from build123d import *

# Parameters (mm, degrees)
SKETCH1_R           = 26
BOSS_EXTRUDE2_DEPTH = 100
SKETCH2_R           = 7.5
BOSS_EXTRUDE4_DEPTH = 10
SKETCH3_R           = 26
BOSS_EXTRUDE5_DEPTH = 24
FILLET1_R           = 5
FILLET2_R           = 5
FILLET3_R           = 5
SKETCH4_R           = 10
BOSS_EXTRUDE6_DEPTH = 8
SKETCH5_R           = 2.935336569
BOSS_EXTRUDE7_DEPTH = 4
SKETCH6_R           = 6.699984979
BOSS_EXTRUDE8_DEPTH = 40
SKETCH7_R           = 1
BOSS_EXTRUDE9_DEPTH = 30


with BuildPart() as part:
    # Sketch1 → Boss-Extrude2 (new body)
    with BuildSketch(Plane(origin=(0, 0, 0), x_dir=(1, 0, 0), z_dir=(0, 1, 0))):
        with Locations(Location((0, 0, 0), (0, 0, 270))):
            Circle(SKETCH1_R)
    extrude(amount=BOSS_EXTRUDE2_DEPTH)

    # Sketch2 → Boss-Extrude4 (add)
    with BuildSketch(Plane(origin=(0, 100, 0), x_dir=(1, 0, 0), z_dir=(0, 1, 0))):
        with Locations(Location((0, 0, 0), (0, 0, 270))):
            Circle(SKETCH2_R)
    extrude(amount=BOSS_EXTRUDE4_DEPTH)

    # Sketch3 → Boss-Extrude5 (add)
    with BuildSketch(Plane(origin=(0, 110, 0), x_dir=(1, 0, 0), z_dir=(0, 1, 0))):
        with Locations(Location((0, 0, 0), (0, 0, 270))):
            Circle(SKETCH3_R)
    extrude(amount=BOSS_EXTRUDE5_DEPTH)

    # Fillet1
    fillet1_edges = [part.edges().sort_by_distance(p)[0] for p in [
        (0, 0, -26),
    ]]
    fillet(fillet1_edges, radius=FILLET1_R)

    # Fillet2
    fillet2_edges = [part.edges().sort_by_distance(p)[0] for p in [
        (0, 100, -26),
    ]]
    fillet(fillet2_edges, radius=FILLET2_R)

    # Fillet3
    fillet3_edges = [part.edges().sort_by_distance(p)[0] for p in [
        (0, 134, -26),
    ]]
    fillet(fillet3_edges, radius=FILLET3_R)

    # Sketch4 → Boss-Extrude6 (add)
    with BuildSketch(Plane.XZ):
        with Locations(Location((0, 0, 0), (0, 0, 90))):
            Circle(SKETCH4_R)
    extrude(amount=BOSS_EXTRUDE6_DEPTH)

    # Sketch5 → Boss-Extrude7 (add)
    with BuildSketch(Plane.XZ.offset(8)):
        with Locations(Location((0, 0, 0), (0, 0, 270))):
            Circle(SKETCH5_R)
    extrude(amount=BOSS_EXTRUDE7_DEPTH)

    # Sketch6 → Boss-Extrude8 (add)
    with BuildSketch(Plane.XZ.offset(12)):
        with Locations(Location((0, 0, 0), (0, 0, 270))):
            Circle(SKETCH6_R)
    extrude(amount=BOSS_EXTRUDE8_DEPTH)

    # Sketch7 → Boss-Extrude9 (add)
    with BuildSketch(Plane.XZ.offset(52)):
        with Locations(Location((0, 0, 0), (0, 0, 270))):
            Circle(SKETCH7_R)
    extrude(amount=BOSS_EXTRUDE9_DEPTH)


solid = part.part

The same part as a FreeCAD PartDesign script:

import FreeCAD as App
import Part
import Sketcher

V = App.Vector
Q = App.Units.Quantity


def edges_at(feature, points):
    """Names of the edges that pass closest to the given points."""
    edges = feature.Shape.Edges
    near = lambda p: min(range(len(edges)), key=lambda i: edges[i].distToShape(Part.Vertex(*p))[0])
    return sorted({f"Edge{near(p) + 1}" for p in points})

doc = App.newDocument("Part")
body = doc.addObject("PartDesign::Body", "Body")

sketch1 = body.newObject("Sketcher::SketchObject", "Sketch")
sketch1.AttachmentSupport = (doc.getObject("XZ_Plane"), [""])
sketch1.MapMode = "FlatFace"
sketch1.addGeometry(Part.Circle(V(0, 0, 0), V(0, 0, 1), 26), False)
sketch1.addConstraint(Sketcher.Constraint("Coincident", 0, 3, -1, 1))
sketch1.addConstraint(Sketcher.Constraint("Diameter", 0, Q("52 mm")))
pad1 = body.newObject("PartDesign::Pad", "Pad")
pad1.Profile = sketch1
pad1.Length = 100
pad1.Reversed = True

sketch2 = body.newObject("Sketcher::SketchObject", "Sketch001")
sketch2.AttachmentSupport = (doc.getObject("XZ_Plane"), [""])
sketch2.MapMode = "FlatFace"
sketch2.AttachmentOffset = App.Placement(V(0, 0, -100), App.Rotation())
sketch2.addGeometry(Part.Circle(V(0, 0, 0), V(0, 0, 1), 8), False)
sketch2.addConstraint(Sketcher.Constraint("Coincident", 0, 3, -1, 1))
sketch2.addConstraint(Sketcher.Constraint("Diameter", 0, Q("15 mm")))
pad2 = body.newObject("PartDesign::Pad", "Pad001")
pad2.Profile = sketch2
pad2.Length = 10
pad2.Reversed = True

sketch3 = body.newObject("Sketcher::SketchObject", "Sketch002")
sketch3.AttachmentSupport = (doc.getObject("XZ_Plane"), [""])
sketch3.MapMode = "FlatFace"
sketch3.AttachmentOffset = App.Placement(V(0, 0, -110), App.Rotation())
sketch3.addGeometry(Part.Circle(V(0, 0, 0), V(0, 0, 1), 26), False)
sketch3.addConstraint(Sketcher.Constraint("Coincident", 0, 3, -1, 1))
sketch3.addConstraint(Sketcher.Constraint("Diameter", 0, Q("52 mm")))
pad3 = body.newObject("PartDesign::Pad", "Pad002")
pad3.Profile = sketch3
pad3.Length = 24
pad3.Reversed = True
doc.recompute()

fillet = body.newObject("PartDesign::Fillet", "Fillet")
fillet.Base = (pad3, edges_at(pad3, [(0, 0, -26)]))
fillet.Radius = 5
doc.recompute()

fillet2 = body.newObject("PartDesign::Fillet", "Fillet001")
fillet2.Base = (fillet, edges_at(fillet, [(0, 100, -26)]))
fillet2.Radius = 5
doc.recompute()

fillet3 = body.newObject("PartDesign::Fillet", "Fillet002")
fillet3.Base = (fillet2, edges_at(fillet2, [(0, 134, -26)]))
fillet3.Radius = 5

sketch4 = body.newObject("Sketcher::SketchObject", "Sketch003")
sketch4.AttachmentSupport = (doc.getObject("XZ_Plane"), [""])
sketch4.MapMode = "FlatFace"
sketch4.addGeometry(Part.Circle(V(0, 0, 0), V(0, 0, 1), 10), False)
sketch4.addConstraint(Sketcher.Constraint("Coincident", 0, 3, -1, 1))
sketch4.addConstraint(Sketcher.Constraint("Diameter", 0, Q("20 mm")))
pad4 = body.newObject("PartDesign::Pad", "Pad003")
pad4.Profile = sketch4
pad4.Length = 8

sketch5 = body.newObject("Sketcher::SketchObject", "Sketch004")
sketch5.AttachmentSupport = (doc.getObject("XZ_Plane"), [""])
sketch5.MapMode = "FlatFace"
sketch5.AttachmentOffset = App.Placement(V(0, 0, 8), App.Rotation())
sketch5.addGeometry(Part.Circle(V(0, 0, 0), V(0, 0, 1), 2.9), False)
sketch5.addConstraint(Sketcher.Constraint("Coincident", 0, 3, -1, 1))
sketch5.addConstraint(Sketcher.Constraint("Diameter", 0, Q("5.870673 mm")))
pad5 = body.newObject("PartDesign::Pad", "Pad004")
pad5.Profile = sketch5
pad5.Length = 4

sketch6 = body.newObject("Sketcher::SketchObject", "Sketch005")
sketch6.AttachmentSupport = (doc.getObject("XZ_Plane"), [""])
sketch6.MapMode = "FlatFace"
sketch6.AttachmentOffset = App.Placement(V(0, 0, 12), App.Rotation())
sketch6.addGeometry(Part.Circle(V(0, 0, 0), V(0, 0, 1), 7), False)
sketch6.addConstraint(Sketcher.Constraint("Coincident", 0, 3, -1, 1))
sketch6.addConstraint(Sketcher.Constraint("Diameter", 0, Q("13.39997 mm")))
pad6 = body.newObject("PartDesign::Pad", "Pad005")
pad6.Profile = sketch6
pad6.Length = 40

sketch7 = body.newObject("Sketcher::SketchObject", "Sketch006")
sketch7.AttachmentSupport = (doc.getObject("XZ_Plane"), [""])
sketch7.MapMode = "FlatFace"
sketch7.AttachmentOffset = App.Placement(V(0, 0, 52), App.Rotation())
sketch7.addGeometry(Part.Circle(V(0, 0, 0), V(0, 0, 1), 1), False)
sketch7.addConstraint(Sketcher.Constraint("Coincident", 0, 3, -1, 1))
sketch7.addConstraint(Sketcher.Constraint("Diameter", 0, Q("2 mm")))
pad7 = body.newObject("PartDesign::Pad", "Pad006")
pad7.Profile = sketch7
pad7.Length = 30

doc.recompute()
